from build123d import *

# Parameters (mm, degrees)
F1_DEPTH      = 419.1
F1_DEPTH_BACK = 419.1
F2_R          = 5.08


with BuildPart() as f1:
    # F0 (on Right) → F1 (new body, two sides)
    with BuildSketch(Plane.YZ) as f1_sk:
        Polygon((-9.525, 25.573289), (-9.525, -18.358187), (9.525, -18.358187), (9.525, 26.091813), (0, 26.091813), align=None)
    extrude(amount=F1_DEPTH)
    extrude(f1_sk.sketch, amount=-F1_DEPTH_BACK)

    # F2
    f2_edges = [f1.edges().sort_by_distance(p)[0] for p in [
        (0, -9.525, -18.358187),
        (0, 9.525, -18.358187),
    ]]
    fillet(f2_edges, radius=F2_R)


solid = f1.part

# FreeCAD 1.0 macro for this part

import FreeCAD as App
import Part
import Sketcher
from FreeCAD import Vector
Q = App.Units.Quantity


def edges_at(feature, points):
    """Names of the edges that pass closest to the given points."""
    edges = feature.Shape.Edges
    near = lambda p: min(range(len(edges)), key=lambda i: edges[i].distToShape(Part.Vertex(*p))[0])
    return sorted({f"Edge{near(p) + 1}" for p in points})


def add_polygon(sketch, points):
    """Adds a closed chain of lines whose ends are joined by coincident constraints."""
    first, n = sketch.GeometryCount, len(points)
    for a, b in zip(points, points[1:] + points[:1]):
        sketch.addGeometry(Part.LineSegment(App.Vector(*a, 0), App.Vector(*b, 0)), False)
    for i in range(n):
        sketch.addConstraint(Sketcher.Constraint("Coincident", first + i, 2, first + (i + 1) % n, 1))

doc = App.newDocument("Part")
body = doc.addObject("PartDesign::Body", "Body")

sketch1 = doc.addObject("Sketcher::SketchObject", "Sketch")
body.addObject(sketch1)
sketch1.AttachmentSupport = (doc.YZ_Plane, [""])
sketch1.MapMode = "FlatFace"
add_polygon(sketch1, [(-10, 26), (-10, -18), (10, -18), (10, 26), (0, 26)])
sketch1.addConstraint(Sketcher.Constraint("Vertical", 0))
sketch1.addConstraint(Sketcher.Constraint("Horizontal", 1))
sketch1.addConstraint(Sketcher.Constraint("Vertical", 2))
sketch1.addConstraint(Sketcher.Constraint("Horizontal", 3))
sketch1.addConstraint(Sketcher.Constraint("PointOnObject", 3, 2, -2))
sketch1.addConstraint(Sketcher.Constraint("DistanceX", 1, 1, 1, 2, Q("0.75 in")))
sketch1.addConstraint(Sketcher.Constraint("DistanceY", 2, 1, 2, 2, Q("1.75 in")))
sketch1.addConstraint(Sketcher.Constraint("DistanceX", 3, 2, 3, 1, Q("0.375 in")))
sketch1.addConstraint(Sketcher.Constraint("DistanceY", 0, 2, 0, 1, 43.931476))
sketch1.addConstraint(Sketcher.Constraint("DistanceY", -1, 1, 4, 2, 25.573289))
pad1 = doc.addObject("PartDesign::Pad", "Pad")
body.addObject(pad1)
pad1.Profile = sketch1
pad1.Type = "TwoLengths"
pad1.Length = Q("16.5 in")
pad1.Length2 = Q("16.5 in")
doc.recompute()

fillet = doc.addObject("PartDesign::Fillet", "Fillet")
body.addObject(fillet)
fillet.Base = (pad1, edges_at(pad1, [(0, -9.525, -18.358), (0, 9.525, -18.358)]))
fillet.Radius = Q("0.2 in")

doc.recompute()
